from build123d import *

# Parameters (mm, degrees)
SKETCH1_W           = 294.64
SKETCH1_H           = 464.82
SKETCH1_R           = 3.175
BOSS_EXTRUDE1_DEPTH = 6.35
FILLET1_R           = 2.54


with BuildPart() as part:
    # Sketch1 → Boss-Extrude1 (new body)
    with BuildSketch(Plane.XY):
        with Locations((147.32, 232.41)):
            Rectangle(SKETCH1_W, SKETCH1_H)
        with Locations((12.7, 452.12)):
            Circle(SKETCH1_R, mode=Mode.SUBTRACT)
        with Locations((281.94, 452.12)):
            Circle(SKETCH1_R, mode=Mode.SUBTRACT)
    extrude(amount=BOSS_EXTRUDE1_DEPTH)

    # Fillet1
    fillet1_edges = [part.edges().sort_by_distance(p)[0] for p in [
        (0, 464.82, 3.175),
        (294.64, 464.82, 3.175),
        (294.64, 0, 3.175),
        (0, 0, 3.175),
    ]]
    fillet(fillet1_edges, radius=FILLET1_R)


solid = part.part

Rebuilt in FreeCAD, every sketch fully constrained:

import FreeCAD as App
import Part
import Sketcher
Q = App.Units.Quantity


def edges_at(feature, points):
    """Names of the edges that pass closest to the given points."""
    edges = feature.Shape.Edges
    near = lambda p: min(range(len(edges)), key=lambda i: edges[i].distToShape(Part.Vertex(*p))[0])
    return sorted({f"Edge{near(p) + 1}" for p in points})


def add_polygon(sketch, points):
    """Adds a closed chain of lines whose ends are joined by coincident constraints."""
    first, n = sketch.GeometryCount, len(points)
    for a, b in zip(points, points[1:] + points[:1]):
        sketch.addGeometry(Part.LineSegment(App.Vector(*a, 0), App.Vector(*b, 0)), False)
    for i in range(n):
        sketch.addConstraint(Sketcher.Constraint("Coincident", first + i, 2, first + (i + 1) % n, 1))

doc = App.newDocument("Part")
body = doc.addObject("PartDesign::Body", "Body")

sketch1 = body.newObject("Sketcher::SketchObject", "Sketch")
sketch1.AttachmentSupport = (doc.getObject("XY_Plane"), [""])
sketch1.MapMode = "FlatFace"
add_polygon(sketch1, [(0, 464.8), (0, 0), (294.6, 0), (294.6, 464.8)])
sketch1.addGeometry(Part.Circle(App.Vector(12.7, 452.1, 0), App.Vector(0, 0, 1), 3.2), False)
sketch1.addGeometry(Part.Circle(App.Vector(281.9, 452.1, 0), App.Vector(0, 0, 1), 3.2), False)
sketch1.addConstraint([
    Sketcher.Constraint("Vertical", 0),
    Sketcher.Constraint("Horizontal", 1),
    Sketcher.Constraint("Vertical", 2),
    Sketcher.Constraint("Horizontal", 3),
    Sketcher.Constraint("Coincident", 0, 2, -1, 1),
    Sketcher.Constraint("Equal", 4, 5),
    Sketcher.Constraint("Horizontal", 4, 3, 5, 3),
    Sketcher.Constraint("Diameter", 4, Q("0.25 in")),
    Sketcher.Constraint("DistanceX", 1, 1, 1, 2, Q("11.6 in")),
    Sketcher.Constraint("DistanceY", 0, 2, 0, 1, Q("18.3 in")),
    Sketcher.Constraint("DistanceX", -1, 1, 4, 3, Q("0.5 in")),
    Sketcher.Constraint("DistanceY", -1, 1, 4, 3, Q("17.8 in")),
    Sketcher.Constraint("DistanceX", -1, 1, 5, 3, Q("11.1 in")),
])
pad1 = body.newObject("PartDesign::Pad", "Pad")
pad1.Profile = sketch1
pad1.Length = Q("0.25 in")
doc.recompute()

fillet = body.newObject("PartDesign::Fillet", "Fillet")
fillet.Base = (pad1, edges_at(pad1, [
    (0, 464.82, 3.175),
    (294.64, 464.82, 3.175),
    (294.64, 0, 3.175),
    (0, 0, 3.175),
]))
fillet.Radius = Q("0.1 in")

doc.recompute()
